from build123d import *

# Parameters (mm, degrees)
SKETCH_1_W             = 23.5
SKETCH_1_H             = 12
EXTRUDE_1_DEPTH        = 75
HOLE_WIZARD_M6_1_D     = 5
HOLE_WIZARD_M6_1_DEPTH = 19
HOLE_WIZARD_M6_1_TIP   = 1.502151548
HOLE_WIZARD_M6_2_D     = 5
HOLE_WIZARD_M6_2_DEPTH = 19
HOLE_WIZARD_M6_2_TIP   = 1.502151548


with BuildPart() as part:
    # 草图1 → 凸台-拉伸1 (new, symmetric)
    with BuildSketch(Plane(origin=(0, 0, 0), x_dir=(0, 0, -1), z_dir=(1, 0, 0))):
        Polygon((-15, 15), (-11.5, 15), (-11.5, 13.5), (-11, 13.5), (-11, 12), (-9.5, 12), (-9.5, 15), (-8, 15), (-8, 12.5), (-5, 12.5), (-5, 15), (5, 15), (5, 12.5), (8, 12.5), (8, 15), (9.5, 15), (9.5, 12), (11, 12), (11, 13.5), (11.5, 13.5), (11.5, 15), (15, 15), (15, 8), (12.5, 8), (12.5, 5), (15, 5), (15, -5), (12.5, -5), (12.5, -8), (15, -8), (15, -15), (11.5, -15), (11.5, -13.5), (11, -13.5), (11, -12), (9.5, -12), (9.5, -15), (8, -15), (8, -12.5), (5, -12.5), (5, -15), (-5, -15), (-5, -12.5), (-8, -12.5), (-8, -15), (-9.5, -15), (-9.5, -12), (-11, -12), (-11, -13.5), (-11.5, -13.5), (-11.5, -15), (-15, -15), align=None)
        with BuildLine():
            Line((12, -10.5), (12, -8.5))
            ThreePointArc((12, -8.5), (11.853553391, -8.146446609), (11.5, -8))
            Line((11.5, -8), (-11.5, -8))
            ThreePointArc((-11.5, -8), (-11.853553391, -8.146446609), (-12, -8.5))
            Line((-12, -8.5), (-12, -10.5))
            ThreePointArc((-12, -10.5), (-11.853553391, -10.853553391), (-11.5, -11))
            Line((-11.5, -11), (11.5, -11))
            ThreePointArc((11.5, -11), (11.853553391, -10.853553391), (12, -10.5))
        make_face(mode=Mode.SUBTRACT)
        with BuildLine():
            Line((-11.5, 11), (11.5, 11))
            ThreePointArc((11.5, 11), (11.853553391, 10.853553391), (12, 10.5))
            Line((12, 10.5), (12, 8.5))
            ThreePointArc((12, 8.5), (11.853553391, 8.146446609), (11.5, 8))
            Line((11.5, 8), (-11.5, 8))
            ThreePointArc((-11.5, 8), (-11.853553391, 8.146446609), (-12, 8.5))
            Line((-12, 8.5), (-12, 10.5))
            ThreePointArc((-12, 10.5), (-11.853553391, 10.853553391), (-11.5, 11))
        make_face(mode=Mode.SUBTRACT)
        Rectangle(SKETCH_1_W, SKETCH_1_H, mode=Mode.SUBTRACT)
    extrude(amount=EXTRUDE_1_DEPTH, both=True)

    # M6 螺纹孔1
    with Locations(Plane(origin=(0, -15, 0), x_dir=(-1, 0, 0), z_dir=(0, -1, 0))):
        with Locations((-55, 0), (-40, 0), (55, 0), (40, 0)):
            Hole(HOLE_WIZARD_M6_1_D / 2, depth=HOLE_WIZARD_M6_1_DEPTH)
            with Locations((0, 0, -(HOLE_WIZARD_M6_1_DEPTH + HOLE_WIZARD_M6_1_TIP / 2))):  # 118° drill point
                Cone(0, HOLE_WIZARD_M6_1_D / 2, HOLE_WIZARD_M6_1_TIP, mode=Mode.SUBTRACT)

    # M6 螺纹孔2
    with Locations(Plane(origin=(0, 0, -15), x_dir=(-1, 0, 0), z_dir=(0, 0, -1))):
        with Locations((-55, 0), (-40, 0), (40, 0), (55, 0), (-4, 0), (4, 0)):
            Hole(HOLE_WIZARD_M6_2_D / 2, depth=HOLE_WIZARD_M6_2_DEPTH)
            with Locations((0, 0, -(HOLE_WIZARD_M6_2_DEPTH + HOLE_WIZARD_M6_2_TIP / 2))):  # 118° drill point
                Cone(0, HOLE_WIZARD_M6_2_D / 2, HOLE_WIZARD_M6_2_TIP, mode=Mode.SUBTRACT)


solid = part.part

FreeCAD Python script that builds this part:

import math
import FreeCAD as App
import Part
import Sketcher
Q = App.Units.Quantity

doc = App.newDocument("Part")
body = doc.addObject("PartDesign::Body", "Body")

# Sketch on YZ plane
sketch1 = body.newObject("Sketcher::SketchObject", "Sketch")
sketch1.AttachmentSupport = (doc.getObject("YZ_Plane"), [""])
sketch1.MapMode = "FlatFace"
sketch1.addGeometry([
    Part.LineSegment(App.Vector(15, 11.5, 0), App.Vector(15, 15, 0)),  # 0
    Part.LineSegment(App.Vector(15, 15, 0), App.Vector(-15, 15, 0)),  # 1
    Part.LineSegment(App.Vector(-15, 15, 0), App.Vector(-15, 11.5, 0)),  # 2
    Part.LineSegment(App.Vector(-15, 11.5, 0), App.Vector(-13.5, 11.5, 0)),  # 3
    Part.LineSegment(App.Vector(-13.5, 11.5, 0), App.Vector(-13.5, 11, 0)),  # 4
    Part.LineSegment(App.Vector(-13.5, 11, 0), App.Vector(-12, 11, 0)),  # 5
    Part.LineSegment(App.Vector(-12, 11, 0), App.Vector(-12, 9.5, 0)),  # 6
    Part.LineSegment(App.Vector(-12, 9.5, 0), App.Vector(-15, 9.5, 0)),  # 7
    Part.LineSegment(App.Vector(-15, 9.5, 0), App.Vector(-15, 8, 0)),  # 8
    Part.LineSegment(App.Vector(-15, 8, 0), App.Vector(-12.5, 8, 0)),  # 9
    Part.LineSegment(App.Vector(-12.5, 8, 0), App.Vector(-12.5, 5, 0)),  # 10
    Part.LineSegment(App.Vector(-12.5, 5, 0), App.Vector(-15, 5, 0)),  # 11
    Part.LineSegment(App.Vector(-15, 5, 0), App.Vector(-15, -5, 0)),  # 12
    Part.LineSegment(App.Vector(-15, -5, 0), App.Vector(-12.5, -5, 0)),  # 13
    Part.LineSegment(App.Vector(-12.5, -5, 0), App.Vector(-12.5, -8, 0)),  # 14
    Part.LineSegment(App.Vector(-12.5, -8, 0), App.Vector(-15, -8, 0)),  # 15
    Part.LineSegment(App.Vector(-15, -8, 0), App.Vector(-15, -9.5, 0)),  # 16
    Part.LineSegment(App.Vector(-15, -9.5, 0), App.Vector(-12, -9.5, 0)),  # 17
    Part.LineSegment(App.Vector(-12, -9.5, 0), App.Vector(-12, -11, 0)),  # 18
    Part.LineSegment(App.Vector(-12, -11, 0), App.Vector(-13.5, -11, 0)),  # 19
    Part.LineSegment(App.Vector(-13.5, -11, 0), App.Vector(-13.5, -11.5, 0)),  # 20
    Part.LineSegment(App.Vector(-13.5, -11.5, 0), App.Vector(-15, -11.5, 0)),  # 21
    Part.LineSegment(App.Vector(-15, -11.5, 0), App.Vector(-15, -15, 0)),  # 22
    Part.LineSegment(App.Vector(-15, -15, 0), App.Vector(-8, -15, 0)),  # 23
    Part.LineSegment(App.Vector(-8, -15, 0), App.Vector(-8, -12.5, 0)),  # 24
    Part.LineSegment(App.Vector(-8, -12.5, 0), App.Vector(-5, -12.5, 0)),  # 25
    Part.LineSegment(App.Vector(-5, -12.5, 0), App.Vector(-5, -15, 0)),  # 26
    Part.LineSegment(App.Vector(-5, -15, 0), App.Vector(5, -15, 0)),  # 27
    Part.LineSegment(App.Vector(5, -15, 0), App.Vector(5, -12.5, 0)),  # 28
    Part.LineSegment(App.Vector(5, -12.5, 0), App.Vector(8, -12.5, 0)),  # 29
    Part.LineSegment(App.Vector(8, -12.5, 0), App.Vector(8, -15, 0)),  # 30
    Part.LineSegment(App.Vector(8, -15, 0), App.Vector(15, -15, 0)),  # 31
    Part.LineSegment(App.Vector(15, -15, 0), App.Vector(15, -11.5, 0)),  # 32
    Part.LineSegment(App.Vector(15, -11.5, 0), App.Vector(13.5, -11.5, 0)),  # 33
    Part.LineSegment(App.Vector(13.5, -11.5, 0), App.Vector(13.5, -11, 0)),  # 34
    Part.LineSegment(App.Vector(13.5, -11, 0), App.Vector(12, -11, 0)),  # 35
    Part.LineSegment(App.Vector(12, -11, 0), App.Vector(12, -9.5, 0)),  # 36
    Part.LineSegment(App.Vector(12, -9.5, 0), App.Vector(15, -9.5, 0)),  # 37
    Part.LineSegment(App.Vector(15, -9.5, 0), App.Vector(15, -8, 0)),  # 38
    Part.LineSegment(App.Vector(15, -8, 0), App.Vector(12.5, -8, 0)),  # 39
    Part.LineSegment(App.Vector(12.5, -8, 0), App.Vector(12.5, -5, 0)),  # 40
    Part.LineSegment(App.Vector(12.5, -5, 0), App.Vector(15, -5, 0)),  # 41
    Part.LineSegment(App.Vector(15, -5, 0), App.Vector(15, 5, 0)),  # 42
    Part.LineSegment(App.Vector(15, 5, 0), App.Vector(12.5, 5, 0)),  # 43
    Part.LineSegment(App.Vector(12.5, 5, 0), App.Vector(12.5, 8, 0)),  # 44
    Part.LineSegment(App.Vector(12.5, 8, 0), App.Vector(15, 8, 0)),  # 45
    Part.LineSegment(App.Vector(15, 8, 0), App.Vector(15, 9.5, 0)),  # 46
    Part.LineSegment(App.Vector(15, 9.5, 0), App.Vector(12, 9.5, 0)),  # 47
    Part.LineSegment(App.Vector(12, 9.5, 0), App.Vector(12, 11, 0)),  # 48
    Part.LineSegment(App.Vector(12, 11, 0), App.Vector(13.5, 11, 0)),  # 49
    Part.LineSegment(App.Vector(13.5, 11, 0), App.Vector(13.5, 11.5, 0)),  # 50
    Part.LineSegment(App.Vector(13.5, 11.5, 0), App.Vector(15, 11.5, 0)),  # 51
    Part.ArcOfCircle(Part.Circle(App.Vector(-10.5, -11.5, 0), App.Vector(0, 0, 1), 0.5), math.radians(180), math.radians(270)),  # 52
    Part.LineSegment(App.Vector(-11, -11.5, 0), App.Vector(-11, 11.5, 0)),  # 53
    Part.ArcOfCircle(Part.Circle(App.Vector(-10.5, 11.5, 0), App.Vector(0, 0, 1), 0.5), math.radians(90), math.radians(180)),  # 54
    Part.LineSegment(App.Vector(-10.5, 12, 0), App.Vector(-8.5, 12, 0)),  # 55
    Part.ArcOfCircle(Part.Circle(App.Vector(-8.5, 11.5, 0), App.Vector(0, 0, 1), 0.5), math.radians(0), math.radians(90)),  # 56
    Part.LineSegment(App.Vector(-8, 11.5, 0), App.Vector(-8, -11.5, 0)),  # 57
    Part.ArcOfCircle(Part.Circle(App.Vector(-8.5, -11.5, 0), App.Vector(0, 0, 1), 0.5), math.radians(-90), math.radians(0)),  # 58
    Part.LineSegment(App.Vector(-8.5, -12, 0), App.Vector(-10.5, -12, 0)),  # 59
    Part.LineSegment(App.Vector(-6, 11.75, 0), App.Vector(6, 11.75, 0)),  # 60
    Part.LineSegment(App.Vector(6, 11.75, 0), App.Vector(6, -11.75, 0)),  # 61
    Part.LineSegment(App.Vector(6, -11.75, 0), App.Vector(-6, -11.75, 0)),  # 62
    Part.LineSegment(App.Vector(-6, -11.75, 0), App.Vector(-6, 11.75, 0)),  # 63
    Part.LineSegment(App.Vector(11, 11.5, 0), App.Vector(11, -11.5, 0)),  # 64
    Part.ArcOfCircle(Part.Circle(App.Vector(10.5, -11.5, 0), App.Vector(0, 0, 1), 0.5), math.radians(-90), math.radians(0)),  # 65
    Part.LineSegment(App.Vector(10.5, -12, 0), App.Vector(8.5, -12, 0)),  # 66
    Part.ArcOfCircle(Part.Circle(App.Vector(8.5, -11.5, 0), App.Vector(0, 0, 1), 0.5), math.radians(180), math.radians(270)),  # 67
    Part.LineSegment(App.Vector(8, -11.5, 0), App.Vector(8, 11.5, 0)),  # 68
    Part.ArcOfCircle(Part.Circle(App.Vector(8.5, 11.5, 0), App.Vector(0, 0, 1), 0.5), math.radians(90), math.radians(180)),  # 69
    Part.LineSegment(App.Vector(8.5, 12, 0), App.Vector(10.5, 12, 0)),  # 70
    Part.ArcOfCircle(Part.Circle(App.Vector(10.5, 11.5, 0), App.Vector(0, 0, 1), 0.5), math.radians(0), math.radians(90)),  # 71
], False)
sketch1.addConstraint([
    Sketcher.Constraint("Coincident", 0, 2, 1, 1),
    Sketcher.Constraint("Coincident", 1, 2, 2, 1),
    Sketcher.Constraint("Coincident", 2, 2, 3, 1),
    Sketcher.Constraint("Coincident", 3, 2, 4, 1),
    Sketcher.Constraint("Coincident", 4, 2, 5, 1),
    Sketcher.Constraint("Coincident", 5, 2, 6, 1),
    Sketcher.Constraint("Coincident", 6, 2, 7, 1),
    Sketcher.Constraint("Coincident", 7, 2, 8, 1),
    Sketcher.Constraint("Coincident", 8, 2, 9, 1),
    Sketcher.Constraint("Coincident", 9, 2, 10, 1),
    Sketcher.Constraint("Coincident", 10, 2, 11, 1),
    Sketcher.Constraint("Coincident", 11, 2, 12, 1),
    Sketcher.Constraint("Coincident", 12, 2, 13, 1),
    Sketcher.Constraint("Coincident", 13, 2, 14, 1),
    Sketcher.Constraint("Coincident", 14, 2, 15, 1),
    Sketcher.Constraint("Coincident", 15, 2, 16, 1),
    Sketcher.Constraint("Coincident", 16, 2, 17, 1),
    Sketcher.Constraint("Coincident", 17, 2, 18, 1),
    Sketcher.Constraint("Coincident", 18, 2, 19, 1),
    Sketcher.Constraint("Coincident", 19, 2, 20, 1),
    Sketcher.Constraint("Coincident", 20, 2, 21, 1),
    Sketcher.Constraint("Coincident", 21, 2, 22, 1),
    Sketcher.Constraint("Coincident", 22, 2, 23, 1),
    Sketcher.Constraint("Coincident", 23, 2, 24, 1),
    Sketcher.Constraint("Coincident", 24, 2, 25, 1),
    Sketcher.Constraint("Coincident", 25, 2, 26, 1),
    Sketcher.Constraint("Coincident", 26, 2, 27, 1),
    Sketcher.Constraint("Coincident", 27, 2, 28, 1),
    Sketcher.Constraint("Coincident", 28, 2, 29, 1),
    Sketcher.Constraint("Coincident", 29, 2, 30, 1),
    Sketcher.Constraint("Coincident", 30, 2, 31, 1),
    Sketcher.Constraint("Coincident", 31, 2, 32, 1),
    Sketcher.Constraint("Coincident", 32, 2, 33, 1),
    Sketcher.Constraint("Coincident", 33, 2, 34, 1),
    Sketcher.Constraint("Coincident", 34, 2, 35, 1),
    Sketcher.Constraint("Coincident", 35, 2, 36, 1),
    Sketcher.Constraint("Coincident", 36, 2, 37, 1),
    Sketcher.Constraint("Coincident", 37, 2, 38, 1),
    Sketcher.Constraint("Coincident", 38, 2, 39, 1),
    Sketcher.Constraint("Coincident", 39, 2, 40, 1),
    Sketcher.Constraint("Coincident", 40, 2, 41, 1),
    Sketcher.Constraint("Coincident", 41, 2, 42, 1),
    Sketcher.Constraint("Coincident", 42, 2, 43, 1),
    Sketcher.Constraint("Coincident", 43, 2, 44, 1),
    Sketcher.Constraint("Coincident", 44, 2, 45, 1),
    Sketcher.Constraint("Coincident", 45, 2, 46, 1),
    Sketcher.Constraint("Coincident", 46, 2, 47, 1),
    Sketcher.Constraint("Coincident", 47, 2, 48, 1),
    Sketcher.Constraint("Coincident", 48, 2, 49, 1),
    Sketcher.Constraint("Coincident", 49, 2, 50, 1),
    Sketcher.Constraint("Coincident", 50, 2, 51, 1),
    Sketcher.Constraint("Coincident", 51, 2, 0, 1),
    Sketcher.Constraint("Tangent", 52, 1, 53, 1),
    Sketcher.Constraint("Tangent", 53, 2, 54, 2),
    Sketcher.Constraint("Tangent", 54, 1, 55, 1),
    Sketcher.Constraint("Tangent", 55, 2, 56, 2),
    Sketcher.Constraint("Tangent", 56, 1, 57, 1),
    Sketcher.Constraint("Tangent", 57, 2, 58, 2),
    Sketcher.Constraint("Tangent", 58, 1, 59, 1),
    Sketcher.Constraint("Tangent", 59, 2, 52, 2),
    Sketcher.Constraint("Coincident", 60, 2, 61, 1),
    Sketcher.Constraint("Coincident", 61, 2, 62, 1),
    Sketcher.Constraint("Coincident", 62, 2, 63, 1),
    Sketcher.Constraint("Coincident", 63, 2, 60, 1),
    Sketcher.Constraint("Tangent", 64, 2, 65, 2),
    Sketcher.Constraint("Tangent", 65, 1, 66, 1),
    Sketcher.Constraint("Tangent", 66, 2, 67, 2),
    Sketcher.Constraint("Tangent", 67, 1, 68, 1),
    Sketcher.Constraint("Tangent", 68, 2, 69, 2),
    Sketcher.Constraint("Tangent", 69, 1, 70, 1),
    Sketcher.Constraint("Tangent", 70, 2, 71, 2),
    Sketcher.Constraint("Tangent", 71, 1, 64, 1),
    Sketcher.Constraint("Vertical", 0),
    Sketcher.Constraint("Horizontal", 1),
    Sketcher.Constraint("Vertical", 2),
    Sketcher.Constraint("Horizontal", 3),
    Sketcher.Constraint("Vertical", 4),
    Sketcher.Constraint("Horizontal", 5),
    Sketcher.Constraint("Vertical", 6),
    Sketcher.Constraint("Horizontal", 7),
    Sketcher.Constraint("Vertical", 8),
    Sketcher.Constraint("Horizontal", 9),
    Sketcher.Constraint("Vertical", 10),
    Sketcher.Constraint("Horizontal", 11),
    Sketcher.Constraint("Vertical", 12),
    Sketcher.Constraint("Horizontal", 13),
    Sketcher.Constraint("Vertical", 14),
    Sketcher.Constraint("Horizontal", 15),
    Sketcher.Constraint("Vertical", 16),
    Sketcher.Constraint("Horizontal", 17),
    Sketcher.Constraint("Vertical", 18),
    Sketcher.Constraint("Horizontal", 19),
    Sketcher.Constraint("Vertical", 20),
    Sketcher.Constraint("Horizontal", 21),
    Sketcher.Constraint("Vertical", 22),
    Sketcher.Constraint("Horizontal", 23),
    Sketcher.Constraint("Vertical", 24),
    Sketcher.Constraint("Horizontal", 25),
    Sketcher.Constraint("Vertical", 26),
    Sketcher.Constraint("Horizontal", 27),
    Sketcher.Constraint("Vertical", 28),
    Sketcher.Constraint("Horizontal", 29),
    Sketcher.Constraint("Vertical", 30),
    Sketcher.Constraint("Horizontal", 31),
    Sketcher.Constraint("Vertical", 32),
    Sketcher.Constraint("Horizontal", 33),
    Sketcher.Constraint("Vertical", 34),
    Sketcher.Constraint("Horizontal", 35),
    Sketcher.Constraint("Vertical", 36),
    Sketcher.Constraint("Horizontal", 37),
    Sketcher.Constraint("Vertical", 38),
    Sketcher.Constraint("Horizontal", 39),
    Sketcher.Constraint("Vertical", 40),
    Sketcher.Constraint("Horizontal", 41),
    Sketcher.Constraint("Vertical", 42),
    Sketcher.Constraint("Horizontal", 43),
    Sketcher.Constraint("Vertical", 44),
    Sketcher.Constraint("Horizontal", 45),
    Sketcher.Constraint("Vertical", 46),
    Sketcher.Constraint("Horizontal", 47),
    Sketcher.Constraint("Vertical", 48),
    Sketcher.Constraint("Horizontal", 49),
    Sketcher.Constraint("Vertical", 50),
    Sketcher.Constraint("Horizontal", 51),
    Sketcher.Constraint("Vertical", 53),
    Sketcher.Constraint("Horizontal", 55),
    Sketcher.Constraint("Vertical", 57),
    Sketcher.Constraint("Horizontal", 59),
    Sketcher.Constraint("Horizontal", 60),
    Sketcher.Constraint("Vertical", 61),
    Sketcher.Constraint("Horizontal", 62),
    Sketcher.Constraint("Vertical", 63),
    Sketcher.Constraint("Vertical", 64),
    Sketcher.Constraint("Horizontal", 66),
    Sketcher.Constraint("Vertical", 68),
    Sketcher.Constraint("Horizontal", 70),
    Sketcher.Constraint("Equal", 52, 54),
    Sketcher.Constraint("Equal", 54, 56),
    Sketcher.Constraint("Equal", 56, 58),
    Sketcher.Constraint("Equal", 58, 65),
    Sketcher.Constraint("Equal", 65, 67),
    Sketcher.Constraint("Equal", 67, 69),
    Sketcher.Constraint("Equal", 69, 71),
    Sketcher.Constraint("Symmetric", 54, 3, 65, 3, -1, 1),
    Sketcher.Constraint("Symmetric", 58, 3, 69, 3, -1, 1),
    Sketcher.Constraint("Symmetric", 0, 2, 22, 2, -1, 1),
    Sketcher.Constraint("Symmetric", 1, 2, 31, 2, -1, 1),
    Sketcher.Constraint("Symmetric", 3, 2, 33, 2, -1, 1),
    Sketcher.Constraint("Symmetric", 5, 2, 35, 2, -1, 1),
    Sketcher.Constraint("Symmetric", 7, 2, 37, 2, -1, 1),
    Sketcher.Constraint("Symmetric", 9, 2, 39, 2, -1, 1),
    Sketcher.Constraint("Symmetric", 11, 2, 41, 2, -1, 1),
    Sketcher.Constraint("Symmetric", 13, 2, 43, 2, -1, 1),
    Sketcher.Constraint("Symmetric", 15, 2, 45, 2, -1, 1),
    Sketcher.Constraint("Symmetric", 17, 2, 47, 2, -1, 1),
    Sketcher.Constraint("Symmetric", 19, 2, 49, 2, -1, 1),
    Sketcher.Constraint("Symmetric", 60, 2, 62, 2, -1, 1),
    Sketcher.Constraint("Symmetric", 25, 2, 28, 2, -2),
    Sketcher.Constraint("Symmetric", 21, 2, 32, 2, -2),
    Sketcher.Constraint("Symmetric", 19, 2, 34, 2, -2),
    Sketcher.Constraint("Symmetric", 17, 2, 36, 2, -2),
    Sketcher.Constraint("Symmetric", 15, 2, 38, 2, -2),
    Sketcher.Constraint("Symmetric", 13, 2, 40, 2, -2),
    Sketcher.Constraint("Horizontal", 58, 3, 65, 3),
    Sketcher.Constraint("Horizontal", 71, 3, 2, 2),
    Sketcher.Constraint("Horizontal", 23, 2, 26, 2),
    Sketcher.Constraint("Horizontal", 3, 2, 50, 2),
    Sketcher.Constraint("Vertical", 2, 2, 7, 2),
    Sketcher.Constraint("Vertical", 8, 2, 11, 2),
    Sketcher.Constraint("Vertical", 24, 2, 56, 1),
    Sketcher.Constraint("Vertical", 30, 2, 67, 1),
    Sketcher.Constraint("Equal", 3, 5),
    Sketcher.Constraint("Equal", 17, 25),
    Sketcher.Constraint("Equal", 51, 6),
    Sketcher.Constraint("Equal", 6, 8),
    Sketcher.Constraint("Equal", 47, 10),
    Sketcher.Constraint("Equal", 27, 12),
    Sketcher.Constraint("Equal", 45, 24),
    Sketcher.Constraint("Radius", 52, Q("0.5 mm")),
    Sketcher.Constraint("DistanceX", 1, 2, 1, 1, Q("30 mm")),
    Sketcher.Constraint("DistanceX", 7, 2, 7, 1, Q("3 mm")),
    Sketcher.Constraint("DistanceX", 23, 1, 23, 2, Q("7 mm")),
    Sketcher.Constraint("DistanceX", 55, 1, 55, 2, Q("2 mm")),
    Sketcher.Constraint("DistanceX", 60, 1, 60, 2, Q("12 mm")),
    Sketcher.Constraint("DistanceY", 53, 1, 53, 2, Q("23 mm")),
    Sketcher.Constraint("DistanceX", 9, 1, 9, 2, Q("2.5 mm")),
    Sketcher.Constraint("DistanceY", 0, 1, 0, 2, Q("3.5 mm")),
    Sketcher.Constraint("DistanceY", 61, 2, 61, 1, Q("23.5 mm")),
])
pad1 = body.newObject("PartDesign::Pad", "Pad")
pad1.Profile = sketch1
pad1.Length = 150
pad1.Midplane = True

# Sketch on XZ plane
sketch2 = body.newObject("Sketcher::SketchObject", "Sketch001")
sketch2.AttachmentSupport = (doc.getObject("XZ_Plane"), [""])
sketch2.MapMode = "FlatFace"
sketch2.AttachmentOffset = App.Placement(App.Vector(0, 0, 15), App.Rotation())
sketch2.addGeometry([
    Part.Circle(App.Vector(55, 0, 0), App.Vector(0, 0, 1), 2.5),
    Part.Circle(App.Vector(40, 0, 0), App.Vector(0, 0, 1), 2.5),
    Part.Circle(App.Vector(-55, 0, 0), App.Vector(0, 0, 1), 2.5),
    Part.Circle(App.Vector(-40, 0, 0), App.Vector(0, 0, 1), 2.5),
], False)
sketch2.addConstraint([
    Sketcher.Constraint("Equal", 0, 1),
    Sketcher.Constraint("Equal", 1, 2),
    Sketcher.Constraint("Equal", 2, 3),
    Sketcher.Constraint("Symmetric", 0, 3, 2, 3, -1, 1),
    Sketcher.Constraint("Symmetric", 1, 3, 3, 3, -1, 1),
    Sketcher.Constraint("PointOnObject", 0, 3, -1),
    Sketcher.Constraint("PointOnObject", 1, 3, -1),
    Sketcher.Constraint("Diameter", 0, Q("5 mm")),
    Sketcher.Constraint("DistanceX", -1, 1, 0, 3, Q("55 mm")),
    Sketcher.Constraint("DistanceX", -1, 1, 1, 3, Q("40 mm")),
])
doc.recompute()
hole = body.newObject("PartDesign::Hole", "Hole")
hole.Profile = sketch2
hole.ThreadType = "None"
hole.Diameter = 5
hole.DepthType = "Dimension"
hole.Depth = 19
hole.DrillPoint = "Angled"
hole.DrillPointAngle = 118

# Sketch on XY plane
sketch3 = body.newObject("Sketcher::SketchObject", "Sketch002")
sketch3.AttachmentSupport = (doc.getObject("XY_Plane"), [""])
sketch3.MapMode = "FlatFace"
sketch3.AttachmentOffset = App.Placement(App.Vector(0, 0, -15), App.Rotation())
sketch3.addGeometry([
    Part.Circle(App.Vector(55, 0, 0), App.Vector(0, 0, 1), 2.5),  # 0
    Part.Circle(App.Vector(40, 0, 0), App.Vector(0, 0, 1), 2.5),  # 1
    Part.Circle(App.Vector(-40, 0, 0), App.Vector(0, 0, 1), 2.5),  # 2
    Part.Circle(App.Vector(-55, 0, 0), App.Vector(0, 0, 1), 2.5),  # 3
    Part.Circle(App.Vector(4, 0, 0), App.Vector(0, 0, 1), 2.5),  # 4
    Part.Circle(App.Vector(-4, 0, 0), App.Vector(0, 0, 1), 2.5),  # 5
], False)
sketch3.addConstraint([
    Sketcher.Constraint("Equal", 0, 1),
    Sketcher.Constraint("Equal", 1, 2),
    Sketcher.Constraint("Equal", 2, 3),
    Sketcher.Constraint("Equal", 3, 4),
    Sketcher.Constraint("Equal", 4, 5),
    Sketcher.Constraint("Symmetric", 1, 3, 2, 3, -1, 1),
    Sketcher.Constraint("Symmetric", 0, 3, 3, 3, -1, 1),
    Sketcher.Constraint("Symmetric", 4, 3, 5, 3, -1, 1),
    Sketcher.Constraint("PointOnObject", 0, 3, -1),
    Sketcher.Constraint("PointOnObject", 1, 3, -1),
    Sketcher.Constraint("PointOnObject", 4, 3, -1),
    Sketcher.Constraint("Diameter", 0, Q("5 mm")),
    Sketcher.Constraint("DistanceX", -1, 1, 0, 3, Q("55 mm")),
    Sketcher.Constraint("DistanceX", -1, 1, 1, 3, Q("40 mm")),
    Sketcher.Constraint("DistanceX", -1, 1, 4, 3, Q("4 mm")),
])
doc.recompute()
hole2 = body.newObject("PartDesign::Hole", "Hole001")
hole2.Profile = sketch3
hole2.ThreadType = "None"
hole2.Diameter = 5
hole2.DepthType = "Dimension"
hole2.Depth = 19
hole2.DrillPoint = "Angled"
hole2.DrillPointAngle = 118
hole2.Reversed = True

doc.recompute()
